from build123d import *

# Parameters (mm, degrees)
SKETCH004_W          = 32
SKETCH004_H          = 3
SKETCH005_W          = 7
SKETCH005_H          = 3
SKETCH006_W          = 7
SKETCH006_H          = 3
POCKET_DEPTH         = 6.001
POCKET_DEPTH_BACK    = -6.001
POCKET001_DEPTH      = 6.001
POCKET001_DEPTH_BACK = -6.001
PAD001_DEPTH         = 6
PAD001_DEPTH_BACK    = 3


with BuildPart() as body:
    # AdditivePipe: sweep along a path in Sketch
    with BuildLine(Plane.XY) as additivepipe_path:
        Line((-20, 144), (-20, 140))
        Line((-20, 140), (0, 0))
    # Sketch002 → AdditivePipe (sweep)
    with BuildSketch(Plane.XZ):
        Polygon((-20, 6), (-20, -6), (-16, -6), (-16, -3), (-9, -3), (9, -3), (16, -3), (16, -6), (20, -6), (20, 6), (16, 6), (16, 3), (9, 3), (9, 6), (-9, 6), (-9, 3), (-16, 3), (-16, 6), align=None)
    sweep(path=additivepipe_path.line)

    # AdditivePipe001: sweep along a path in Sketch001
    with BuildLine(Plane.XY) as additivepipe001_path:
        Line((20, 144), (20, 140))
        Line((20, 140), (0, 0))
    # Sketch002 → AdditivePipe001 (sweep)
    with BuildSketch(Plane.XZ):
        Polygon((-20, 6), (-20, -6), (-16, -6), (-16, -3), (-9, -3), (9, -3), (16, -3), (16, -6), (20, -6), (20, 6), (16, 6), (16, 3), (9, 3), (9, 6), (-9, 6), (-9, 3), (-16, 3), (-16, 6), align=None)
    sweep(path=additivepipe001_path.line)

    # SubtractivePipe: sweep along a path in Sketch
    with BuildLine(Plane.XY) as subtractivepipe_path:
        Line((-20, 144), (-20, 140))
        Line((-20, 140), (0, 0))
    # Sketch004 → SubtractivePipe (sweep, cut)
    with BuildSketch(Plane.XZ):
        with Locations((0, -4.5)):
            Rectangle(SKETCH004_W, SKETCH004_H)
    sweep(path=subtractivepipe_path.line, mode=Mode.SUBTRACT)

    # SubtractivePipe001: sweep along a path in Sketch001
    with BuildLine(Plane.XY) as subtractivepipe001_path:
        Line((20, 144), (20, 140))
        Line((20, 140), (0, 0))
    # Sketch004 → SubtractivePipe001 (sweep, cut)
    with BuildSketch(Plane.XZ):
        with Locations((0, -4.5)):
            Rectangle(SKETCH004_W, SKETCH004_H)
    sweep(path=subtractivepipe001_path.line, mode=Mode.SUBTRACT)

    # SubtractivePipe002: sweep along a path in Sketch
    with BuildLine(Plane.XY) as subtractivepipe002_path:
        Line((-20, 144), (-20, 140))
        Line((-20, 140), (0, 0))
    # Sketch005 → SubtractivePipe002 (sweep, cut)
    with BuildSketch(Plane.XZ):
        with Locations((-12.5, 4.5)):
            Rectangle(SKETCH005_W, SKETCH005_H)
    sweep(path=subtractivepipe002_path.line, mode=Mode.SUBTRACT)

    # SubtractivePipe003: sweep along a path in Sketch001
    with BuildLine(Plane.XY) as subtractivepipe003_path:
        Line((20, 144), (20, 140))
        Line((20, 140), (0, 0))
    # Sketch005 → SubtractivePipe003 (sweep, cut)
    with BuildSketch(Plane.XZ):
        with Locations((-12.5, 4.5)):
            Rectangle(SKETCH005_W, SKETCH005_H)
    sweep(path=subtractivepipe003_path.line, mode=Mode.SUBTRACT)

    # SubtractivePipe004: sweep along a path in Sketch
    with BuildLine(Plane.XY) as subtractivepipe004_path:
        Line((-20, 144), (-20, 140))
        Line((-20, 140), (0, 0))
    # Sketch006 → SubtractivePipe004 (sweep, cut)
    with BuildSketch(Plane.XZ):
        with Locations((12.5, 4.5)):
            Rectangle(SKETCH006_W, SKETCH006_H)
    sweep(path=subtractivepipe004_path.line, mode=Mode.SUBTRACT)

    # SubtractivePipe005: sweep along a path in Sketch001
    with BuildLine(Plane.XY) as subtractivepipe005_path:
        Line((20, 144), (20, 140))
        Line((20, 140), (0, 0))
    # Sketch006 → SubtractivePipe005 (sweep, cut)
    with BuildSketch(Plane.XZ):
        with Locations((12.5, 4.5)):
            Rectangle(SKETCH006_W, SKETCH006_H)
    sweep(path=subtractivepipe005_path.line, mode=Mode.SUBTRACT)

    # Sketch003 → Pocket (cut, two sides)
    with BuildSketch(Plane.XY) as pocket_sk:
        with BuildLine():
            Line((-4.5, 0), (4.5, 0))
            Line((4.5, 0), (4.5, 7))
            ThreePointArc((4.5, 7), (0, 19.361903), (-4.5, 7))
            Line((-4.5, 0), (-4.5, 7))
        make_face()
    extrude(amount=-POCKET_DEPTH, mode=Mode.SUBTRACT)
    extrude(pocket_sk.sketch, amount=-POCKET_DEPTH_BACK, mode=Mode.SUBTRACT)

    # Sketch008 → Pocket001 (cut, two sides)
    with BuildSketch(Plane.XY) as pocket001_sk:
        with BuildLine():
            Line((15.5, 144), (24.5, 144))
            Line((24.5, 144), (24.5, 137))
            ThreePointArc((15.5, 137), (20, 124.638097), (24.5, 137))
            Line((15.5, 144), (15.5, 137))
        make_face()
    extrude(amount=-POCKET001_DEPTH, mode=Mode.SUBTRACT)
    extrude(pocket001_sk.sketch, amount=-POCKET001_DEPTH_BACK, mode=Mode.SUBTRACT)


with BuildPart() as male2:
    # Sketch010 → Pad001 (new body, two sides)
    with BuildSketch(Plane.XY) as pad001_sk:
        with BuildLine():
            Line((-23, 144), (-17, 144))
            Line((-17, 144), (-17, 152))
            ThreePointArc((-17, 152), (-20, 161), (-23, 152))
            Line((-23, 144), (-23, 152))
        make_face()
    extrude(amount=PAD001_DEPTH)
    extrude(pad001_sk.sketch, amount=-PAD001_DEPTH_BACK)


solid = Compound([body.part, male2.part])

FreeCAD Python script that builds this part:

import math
import FreeCAD as App
import Part
import Sketcher


def add_polygon(sketch, points):
    """Adds a closed chain of lines whose ends are joined by coincident constraints."""
    first, n = sketch.GeometryCount, len(points)
    for a, b in zip(points, points[1:] + points[:1]):
        sketch.addGeometry(Part.LineSegment(App.Vector(*a, 0), App.Vector(*b, 0)), False)
    for i in range(n):
        sketch.addConstraint(Sketcher.Constraint("Coincident", first + i, 2, first + (i + 1) % n, 1))

doc = App.newDocument("Part")
params = doc.addObject("Spreadsheet::Sheet", "Params")
for row, (alias, value) in enumerate([
    ("sketch1_width", "4 mm"),
    ("sketch1_width2", "32 mm"),
    ("sketch1_width3", "7 mm"),
    ("sketch1_height", "12 mm"),
    ("sketch1_height2", "3 mm"),
    ("sketch2_height", "4 mm"),
    ("sketch3_width", "4 mm"),
    ("sketch3_width2", "32 mm"),
    ("sketch3_width3", "7 mm"),
    ("sketch3_height", "12 mm"),
    ("sketch3_height2", "3 mm"),
    ("sketch4_height", "4 mm"),
    ("sketch5_width", "32 mm"),
    ("sketch5_height", "3 mm"),
    ("sketch6_height", "4 mm"),
    ("sketch7_width", "32 mm"),
    ("sketch7_height", "3 mm"),
    ("sketch8_height", "4 mm"),
    ("sketch9_width", "7 mm"),
    ("sketch9_height", "3 mm"),
    ("sketch10_height", "4 mm"),
    ("sketch11_width", "7 mm"),
    ("sketch11_height", "3 mm"),
    ("sketch12_height", "4 mm"),
    ("sketch13_width", "7 mm"),
    ("sketch13_height", "3 mm"),
    ("sketch14_height", "4 mm"),
    ("sketch15_width", "7 mm"),
    ("sketch15_height", "3 mm"),
    ("sketch16_height", "4 mm"),
    ("sketch17_radius", "7 mm"),
    ("sketch17_width", "9 mm"),
    ("sketch17_height", "7 mm"),
    ("sketch18_radius", "7 mm"),
    ("sketch18_width", "9 mm"),
    ("sketch18_height", "7 mm"),
    ("sketch19_radius", "5 mm"),
    ("sketch19_width", "6 mm"),
    ("sketch19_height", "8 mm"),
    ("pad1_length", "6 mm"),
    ("pad1_length2", "3 mm"),
], start=1):
    params.set(f"A{row}", alias)
    params.set(f"B{row}", "=" + value)
    params.setAlias(f"B{row}", alias)

body = doc.addObject("PartDesign::Body", "Body")

sketch1 = body.newObject("Sketcher::SketchObject", "Sketch")
sketch1.AttachmentSupport = (doc.getObject("XZ_Plane"), [""])
sketch1.MapMode = "FlatFace"
add_polygon(sketch1, [(-20, 6), (-20, -6), (-16, -6), (-16, -3), (16, -3), (16, -6), (20, -6), (20, 6), (16, 6), (16, 3), (9, 3), (9, 6), (-9, 6), (-9, 3), (-16, 3), (-16, 6)])
sketch1.addConstraint(Sketcher.Constraint("Vertical", 0))
sketch1.addConstraint(Sketcher.Constraint("Horizontal", 1))
sketch1.addConstraint(Sketcher.Constraint("Vertical", 2))
sketch1.addConstraint(Sketcher.Constraint("Horizontal", 3))
sketch1.addConstraint(Sketcher.Constraint("Vertical", 4))
sketch1.addConstraint(Sketcher.Constraint("Horizontal", 5))
sketch1.addConstraint(Sketcher.Constraint("Vertical", 6))
sketch1.addConstraint(Sketcher.Constraint("Horizontal", 7))
sketch1.addConstraint(Sketcher.Constraint("Vertical", 8))
sketch1.addConstraint(Sketcher.Constraint("Horizontal", 9))
sketch1.addConstraint(Sketcher.Constraint("Vertical", 10))
sketch1.addConstraint(Sketcher.Constraint("Horizontal", 11))
sketch1.addConstraint(Sketcher.Constraint("Vertical", 12))
sketch1.addConstraint(Sketcher.Constraint("Horizontal", 13))
sketch1.addConstraint(Sketcher.Constraint("Vertical", 14))
sketch1.addConstraint(Sketcher.Constraint("Horizontal", 15))
sketch1.addConstraint(Sketcher.Constraint("Symmetric", 0, 2, 6, 2, -1, 1))
sketch1.addConstraint(Sketcher.Constraint("Symmetric", 2, 2, 8, 2, -1, 1))
sketch1.addConstraint(Sketcher.Constraint("Symmetric", 3, 2, 13, 2, -1, 1))
sketch1.addConstraint(Sketcher.Constraint("Symmetric", 1, 2, 4, 2, -2))
sketch1.addConstraint(Sketcher.Constraint("Horizontal", 7, 2, 10, 2))
sketch1.addConstraint(Sketcher.Constraint("Horizontal", 11, 2, 14, 2))
sketch1.addConstraint(Sketcher.Constraint("Equal", 9, 13))
sketch1.addConstraint(Sketcher.Constraint("DistanceX", 1, 1, 1, 2, 4.0))
sketch1.addConstraint(Sketcher.Constraint("DistanceX", 3, 1, 3, 2, 32.0))
sketch1.addConstraint(Sketcher.Constraint("DistanceX", 9, 2, 9, 1, 7.0))
sketch1.addConstraint(Sketcher.Constraint("DistanceY", 0, 2, 0, 1, 12.0))
sketch1.addConstraint(Sketcher.Constraint("DistanceY", 2, 1, 2, 2, 3.0))
sketch1.setExpression("Constraints[39]", "Params.sketch1_width")
sketch1.setExpression("Constraints[40]", "Params.sketch1_width2")
sketch1.setExpression("Constraints[41]", "Params.sketch1_width3")
sketch1.setExpression("Constraints[42]", "Params.sketch1_height")
sketch1.setExpression("Constraints[43]", "Params.sketch1_height2")

sketch2 = body.newObject("Sketcher::SketchObject", "Sketch001")
sketch2.AttachmentSupport = (doc.getObject("XY_Plane"), [""])
sketch2.MapMode = "FlatFace"
sketch2.addGeometry(Part.LineSegment(App.Vector(-20, 144, 0), App.Vector(-20, 140, 0)), False)
sketch2.addGeometry(Part.LineSegment(App.Vector(-20, 140, 0), App.Vector(0, 0, 0)), False)
sketch2.addConstraint(Sketcher.Constraint("Coincident", 0, 2, 1, 1))
sketch2.addConstraint(Sketcher.Constraint("Vertical", 0))
sketch2.addConstraint(Sketcher.Constraint("Coincident", 1, 2, -1, 1))
sketch2.addConstraint(Sketcher.Constraint("DistanceY", 0, 2, 0, 1, 4.0))
sketch2.addConstraint(Sketcher.Constraint("DistanceX", 0, 1, -1, 1, 20.0))
sketch2.addConstraint(Sketcher.Constraint("DistanceY", -1, 1, 0, 1, 144.0))
sketch2.setExpression("Constraints[3]", "Params.sketch2_height")
doc.recompute()

additivepipe = body.newObject("PartDesign::AdditivePipe", "AdditivePipe")
additivepipe.Profile = sketch1
additivepipe.Spine = (sketch2, ["Edge1", "Edge2"])

sketch3 = body.newObject("Sketcher::SketchObject", "Sketch002")
sketch3.AttachmentSupport = (doc.getObject("XZ_Plane"), [""])
sketch3.MapMode = "FlatFace"
add_polygon(sketch3, [(-20, 6), (-20, -6), (-16, -6), (-16, -3), (16, -3), (16, -6), (20, -6), (20, 6), (16, 6), (16, 3), (9, 3), (9, 6), (-9, 6), (-9, 3), (-16, 3), (-16, 6)])
sketch3.addConstraint(Sketcher.Constraint("Vertical", 0))
sketch3.addConstraint(Sketcher.Constraint("Horizontal", 1))
sketch3.addConstraint(Sketcher.Constraint("Vertical", 2))
sketch3.addConstraint(Sketcher.Constraint("Horizontal", 3))
sketch3.addConstraint(Sketcher.Constraint("Vertical", 4))
sketch3.addConstraint(Sketcher.Constraint("Horizontal", 5))
sketch3.addConstraint(Sketcher.Constraint("Vertical", 6))
sketch3.addConstraint(Sketcher.Constraint("Horizontal", 7))
sketch3.addConstraint(Sketcher.Constraint("Vertical", 8))
sketch3.addConstraint(Sketcher.Constraint("Horizontal", 9))
sketch3.addConstraint(Sketcher.Constraint("Vertical", 10))
sketch3.addConstraint(Sketcher.Constraint("Horizontal", 11))
sketch3.addConstraint(Sketcher.Constraint("Vertical", 12))
sketch3.addConstraint(Sketcher.Constraint("Horizontal", 13))
sketch3.addConstraint(Sketcher.Constraint("Vertical", 14))
sketch3.addConstraint(Sketcher.Constraint("Horizontal", 15))
sketch3.addConstraint(Sketcher.Constraint("Symmetric", 0, 2, 6, 2, -1, 1))
sketch3.addConstraint(Sketcher.Constraint("Symmetric", 2, 2, 8, 2, -1, 1))
sketch3.addConstraint(Sketcher.Constraint("Symmetric", 3, 2, 13, 2, -1, 1))
sketch3.addConstraint(Sketcher.Constraint("Symmetric", 1, 2, 4, 2, -2))
sketch3.addConstraint(Sketcher.Constraint("Horizontal", 7, 2, 10, 2))
sketch3.addConstraint(Sketcher.Constraint("Horizontal", 11, 2, 14, 2))
sketch3.addConstraint(Sketcher.Constraint("Equal", 9, 13))
sketch3.addConstraint(Sketcher.Constraint("DistanceX", 1, 1, 1, 2, 4.0))
sketch3.addConstraint(Sketcher.Constraint("DistanceX", 3, 1, 3, 2, 32.0))
sketch3.addConstraint(Sketcher.Constraint("DistanceX", 9, 2, 9, 1, 7.0))
sketch3.addConstraint(Sketcher.Constraint("DistanceY", 0, 2, 0, 1, 12.0))
sketch3.addConstraint(Sketcher.Constraint("DistanceY", 2, 1, 2, 2, 3.0))
sketch3.setExpression("Constraints[39]", "Params.sketch3_width")
sketch3.setExpression("Constraints[40]", "Params.sketch3_width2")
sketch3.setExpression("Constraints[41]", "Params.sketch3_width3")
sketch3.setExpression("Constraints[42]", "Params.sketch3_height")
sketch3.setExpression("Constraints[43]", "Params.sketch3_height2")

sketch4 = body.newObject("Sketcher::SketchObject", "Sketch003")
sketch4.AttachmentSupport = (doc.getObject("XY_Plane"), [""])
sketch4.MapMode = "FlatFace"
sketch4.addGeometry(Part.LineSegment(App.Vector(20, 144, 0), App.Vector(20, 140, 0)), False)
sketch4.addGeometry(Part.LineSegment(App.Vector(20, 140, 0), App.Vector(0, 0, 0)), False)
sketch4.addConstraint(Sketcher.Constraint("Coincident", 0, 2, 1, 1))
sketch4.addConstraint(Sketcher.Constraint("Vertical", 0))
sketch4.addConstraint(Sketcher.Constraint("Coincident", 1, 2, -1, 1))
sketch4.addConstraint(Sketcher.Constraint("DistanceY", 0, 2, 0, 1, 4.0))
sketch4.addConstraint(Sketcher.Constraint("DistanceX", -1, 1, 0, 1, 20.0))
sketch4.addConstraint(Sketcher.Constraint("DistanceY", -1, 1, 0, 1, 144.0))
sketch4.setExpression("Constraints[3]", "Params.sketch4_height")
doc.recompute()

additivepipe2 = body.newObject("PartDesign::AdditivePipe", "AdditivePipe001")
additivepipe2.Profile = sketch3
additivepipe2.Spine = (sketch4, ["Edge1", "Edge2"])

sketch5 = body.newObject("Sketcher::SketchObject", "Sketch004")
sketch5.AttachmentSupport = (doc.getObject("XZ_Plane"), [""])
sketch5.MapMode = "FlatFace"
add_polygon(sketch5, [(-16, -3), (-16, -6), (16, -6), (16, -3)])
sketch5.addConstraint(Sketcher.Constraint("Vertical", 0))
sketch5.addConstraint(Sketcher.Constraint("Horizontal", 1))
sketch5.addConstraint(Sketcher.Constraint("Vertical", 2))
sketch5.addConstraint(Sketcher.Constraint("Horizontal", 3))
sketch5.addConstraint(Sketcher.Constraint("DistanceX", 1, 1, 1, 2, 32.0))
sketch5.addConstraint(Sketcher.Constraint("DistanceY", 0, 2, 0, 1, 3.0))
sketch5.addConstraint(Sketcher.Constraint("DistanceX", 0, 2, -1, 1, 16.0))
sketch5.addConstraint(Sketcher.Constraint("DistanceY", 0, 2, -1, 1, 6.0))
sketch5.setExpression("Constraints[8]", "Params.sketch5_width")
sketch5.setExpression("Constraints[9]", "Params.sketch5_height")

sketch6 = body.newObject("Sketcher::SketchObject", "Sketch005")
sketch6.AttachmentSupport = (doc.getObject("XY_Plane"), [""])
sketch6.MapMode = "FlatFace"
sketch6.addGeometry(Part.LineSegment(App.Vector(-20, 144, 0), App.Vector(-20, 140, 0)), False)
sketch6.addGeometry(Part.LineSegment(App.Vector(-20, 140, 0), App.Vector(0, 0, 0)), False)
sketch6.addConstraint(Sketcher.Constraint("Coincident", 0, 2, 1, 1))
sketch6.addConstraint(Sketcher.Constraint("Vertical", 0))
sketch6.addConstraint(Sketcher.Constraint("Coincident", 1, 2, -1, 1))
sketch6.addConstraint(Sketcher.Constraint("DistanceY", 0, 2, 0, 1, 4.0))
sketch6.addConstraint(Sketcher.Constraint("DistanceX", 0, 1, -1, 1, 20.0))
sketch6.addConstraint(Sketcher.Constraint("DistanceY", -1, 1, 0, 1, 144.0))
sketch6.setExpression("Constraints[3]", "Params.sketch6_height")
doc.recompute()

subtractivepipe = body.newObject("PartDesign::SubtractivePipe", "SubtractivePipe")
subtractivepipe.Profile = sketch5
subtractivepipe.Spine = (sketch6, ["Edge1", "Edge2"])

sketch7 = body.newObject("Sketcher::SketchObject", "Sketch006")
sketch7.AttachmentSupport = (doc.getObject("XZ_Plane"), [""])
sketch7.MapMode = "FlatFace"
add_polygon(sketch7, [(-16, -3), (-16, -6), (16, -6), (16, -3)])
sketch7.addConstraint(Sketcher.Constraint("Vertical", 0))
sketch7.addConstraint(Sketcher.Constraint("Horizontal", 1))
sketch7.addConstraint(Sketcher.Constraint("Vertical", 2))
sketch7.addConstraint(Sketcher.Constraint("Horizontal", 3))
sketch7.addConstraint(Sketcher.Constraint("DistanceX", 1, 1, 1, 2, 32.0))
sketch7.addConstraint(Sketcher.Constraint("DistanceY", 0, 2, 0, 1, 3.0))
sketch7.addConstraint(Sketcher.Constraint("DistanceX", 0, 2, -1, 1, 16.0))
sketch7.addConstraint(Sketcher.Constraint("DistanceY", 0, 2, -1, 1, 6.0))
sketch7.setExpression("Constraints[8]", "Params.sketch7_width")
sketch7.setExpression("Constraints[9]", "Params.sketch7_height")

sketch8 = body.newObject("Sketcher::SketchObject", "Sketch007")
sketch8.AttachmentSupport = (doc.getObject("XY_Plane"), [""])
sketch8.MapMode = "FlatFace"
sketch8.addGeometry(Part.LineSegment(App.Vector(20, 144, 0), App.Vector(20, 140, 0)), False)
sketch8.addGeometry(Part.LineSegment(App.Vector(20, 140, 0), App.Vector(0, 0, 0)), False)
sketch8.addConstraint(Sketcher.Constraint("Coincident", 0, 2, 1, 1))
sketch8.addConstraint(Sketcher.Constraint("Vertical", 0))
sketch8.addConstraint(Sketcher.Constraint("Coincident", 1, 2, -1, 1))
sketch8.addConstraint(Sketcher.Constraint("DistanceY", 0, 2, 0, 1, 4.0))
sketch8.addConstraint(Sketcher.Constraint("DistanceX", -1, 1, 0, 1, 20.0))
sketch8.addConstraint(Sketcher.Constraint("DistanceY", -1, 1, 0, 1, 144.0))
sketch8.setExpression("Constraints[3]", "Params.sketch8_height")
doc.recompute()

subtractivepipe2 = body.newObject("PartDesign::SubtractivePipe", "SubtractivePipe001")
subtractivepipe2.Profile = sketch7
subtractivepipe2.Spine = (sketch8, ["Edge1", "Edge2"])

sketch9 = body.newObject("Sketcher::SketchObject", "Sketch008")
sketch9.AttachmentSupport = (doc.getObject("XZ_Plane"), [""])
sketch9.MapMode = "FlatFace"
add_polygon(sketch9, [(-16, 6), (-16, 3), (-9, 3), (-9, 6)])
sketch9.addConstraint(Sketcher.Constraint("Vertical", 0))
sketch9.addConstraint(Sketcher.Constraint("Horizontal", 1))
sketch9.addConstraint(Sketcher.Constraint("Vertical", 2))
sketch9.addConstraint(Sketcher.Constraint("Horizontal", 3))
sketch9.addConstraint(Sketcher.Constraint("DistanceX", 1, 1, 1, 2, 7.0))
sketch9.addConstraint(Sketcher.Constraint("DistanceY", 0, 2, 0, 1, 3.0))
sketch9.addConstraint(Sketcher.Constraint("DistanceX", 0, 2, -1, 1, 16.0))
sketch9.addConstraint(Sketcher.Constraint("DistanceY", -1, 1, 0, 2, 3.0))
sketch9.setExpression("Constraints[8]", "Params.sketch9_width")
sketch9.setExpression("Constraints[9]", "Params.sketch9_height")

sketch10 = body.newObject("Sketcher::SketchObject", "Sketch009")
sketch10.AttachmentSupport = (doc.getObject("XY_Plane"), [""])
sketch10.MapMode = "FlatFace"
sketch10.addGeometry(Part.LineSegment(App.Vector(-20, 144, 0), App.Vector(-20, 140, 0)), False)
sketch10.addGeometry(Part.LineSegment(App.Vector(-20, 140, 0), App.Vector(0, 0, 0)), False)
sketch10.addConstraint(Sketcher.Constraint("Coincident", 0, 2, 1, 1))
sketch10.addConstraint(Sketcher.Constraint("Vertical", 0))
sketch10.addConstraint(Sketcher.Constraint("Coincident", 1, 2, -1, 1))
sketch10.addConstraint(Sketcher.Constraint("DistanceY", 0, 2, 0, 1, 4.0))
sketch10.addConstraint(Sketcher.Constraint("DistanceX", 0, 1, -1, 1, 20.0))
sketch10.addConstraint(Sketcher.Constraint("DistanceY", -1, 1, 0, 1, 144.0))
sketch10.setExpression("Constraints[3]", "Params.sketch10_height")
doc.recompute()

subtractivepipe3 = body.newObject("PartDesign::SubtractivePipe", "SubtractivePipe002")
subtractivepipe3.Profile = sketch9
subtractivepipe3.Spine = (sketch10, ["Edge1", "Edge2"])

sketch11 = body.newObject("Sketcher::SketchObject", "Sketch010")
sketch11.AttachmentSupport = (doc.getObject("XZ_Plane"), [""])
sketch11.MapMode = "FlatFace"
add_polygon(sketch11, [(-16, 6), (-16, 3), (-9, 3), (-9, 6)])
sketch11.addConstraint(Sketcher.Constraint("Vertical", 0))
sketch11.addConstraint(Sketcher.Constraint("Horizontal", 1))
sketch11.addConstraint(Sketcher.Constraint("Vertical", 2))
sketch11.addConstraint(Sketcher.Constraint("Horizontal", 3))
sketch11.addConstraint(Sketcher.Constraint("DistanceX", 1, 1, 1, 2, 7.0))
sketch11.addConstraint(Sketcher.Constraint("DistanceY", 0, 2, 0, 1, 3.0))
sketch11.addConstraint(Sketcher.Constraint("DistanceX", 0, 2, -1, 1, 16.0))
sketch11.addConstraint(Sketcher.Constraint("DistanceY", -1, 1, 0, 2, 3.0))
sketch11.setExpression("Constraints[8]", "Params.sketch11_width")
sketch11.setExpression("Constraints[9]", "Params.sketch11_height")

sketch12 = body.newObject("Sketcher::SketchObject", "Sketch011")
sketch12.AttachmentSupport = (doc.getObject("XY_Plane"), [""])
sketch12.MapMode = "FlatFace"
sketch12.addGeometry(Part.LineSegment(App.Vector(20, 144, 0), App.Vector(20, 140, 0)), False)
sketch12.addGeometry(Part.LineSegment(App.Vector(20, 140, 0), App.Vector(0, 0, 0)), False)
sketch12.addConstraint(Sketcher.Constraint("Coincident", 0, 2, 1, 1))
sketch12.addConstraint(Sketcher.Constraint("Vertical", 0))
sketch12.addConstraint(Sketcher.Constraint("Coincident", 1, 2, -1, 1))
sketch12.addConstraint(Sketcher.Constraint("DistanceY", 0, 2, 0, 1, 4.0))
sketch12.addConstraint(Sketcher.Constraint("DistanceX", -1, 1, 0, 1, 20.0))
sketch12.addConstraint(Sketcher.Constraint("DistanceY", -1, 1, 0, 1, 144.0))
sketch12.setExpression("Constraints[3]", "Params.sketch12_height")
doc.recompute()

subtractivepipe4 = body.newObject("PartDesign::SubtractivePipe", "SubtractivePipe003")
subtractivepipe4.Profile = sketch11
subtractivepipe4.Spine = (sketch12, ["Edge1", "Edge2"])

sketch13 = body.newObject("Sketcher::SketchObject", "Sketch012")
sketch13.AttachmentSupport = (doc.getObject("XZ_Plane"), [""])
sketch13.MapMode = "FlatFace"
add_polygon(sketch13, [(9, 6), (9, 3), (16, 3), (16, 6)])
sketch13.addConstraint(Sketcher.Constraint("Vertical", 0))
sketch13.addConstraint(Sketcher.Constraint("Horizontal", 1))
sketch13.addConstraint(Sketcher.Constraint("Vertical", 2))
sketch13.addConstraint(Sketcher.Constraint("Horizontal", 3))
sketch13.addConstraint(Sketcher.Constraint("DistanceX", 1, 1, 1, 2, 7.0))
sketch13.addConstraint(Sketcher.Constraint("DistanceY", 0, 2, 0, 1, 3.0))
sketch13.addConstraint(Sketcher.Constraint("DistanceX", -1, 1, 0, 2, 9.0))
sketch13.addConstraint(Sketcher.Constraint("DistanceY", -1, 1, 0, 2, 3.0))
sketch13.setExpression("Constraints[8]", "Params.sketch13_width")
sketch13.setExpression("Constraints[9]", "Params.sketch13_height")

sketch14 = body.newObject("Sketcher::SketchObject", "Sketch013")
sketch14.AttachmentSupport = (doc.getObject("XY_Plane"), [""])
sketch14.MapMode = "FlatFace"
sketch14.addGeometry(Part.LineSegment(App.Vector(-20, 144, 0), App.Vector(-20, 140, 0)), False)
sketch14.addGeometry(Part.LineSegment(App.Vector(-20, 140, 0), App.Vector(0, 0, 0)), False)
sketch14.addConstraint(Sketcher.Constraint("Coincident", 0, 2, 1, 1))
sketch14.addConstraint(Sketcher.Constraint("Vertical", 0))
sketch14.addConstraint(Sketcher.Constraint("Coincident", 1, 2, -1, 1))
sketch14.addConstraint(Sketcher.Constraint("DistanceY", 0, 2, 0, 1, 4.0))
sketch14.addConstraint(Sketcher.Constraint("DistanceX", 0, 1, -1, 1, 20.0))
sketch14.addConstraint(Sketcher.Constraint("DistanceY", -1, 1, 0, 1, 144.0))
sketch14.setExpression("Constraints[3]", "Params.sketch14_height")
doc.recompute()

subtractivepipe5 = body.newObject("PartDesign::SubtractivePipe", "SubtractivePipe004")
subtractivepipe5.Profile = sketch13
subtractivepipe5.Spine = (sketch14, ["Edge1", "Edge2"])

sketch15 = body.newObject("Sketcher::SketchObject", "Sketch014")
sketch15.AttachmentSupport = (doc.getObject("XZ_Plane"), [""])
sketch15.MapMode = "FlatFace"
add_polygon(sketch15, [(9, 6), (9, 3), (16, 3), (16, 6)])
sketch15.addConstraint(Sketcher.Constraint("Vertical", 0))
sketch15.addConstraint(Sketcher.Constraint("Horizontal", 1))
sketch15.addConstraint(Sketcher.Constraint("Vertical", 2))
sketch15.addConstraint(Sketcher.Constraint("Horizontal", 3))
sketch15.addConstraint(Sketcher.Constraint("DistanceX", 1, 1, 1, 2, 7.0))
sketch15.addConstraint(Sketcher.Constraint("DistanceY", 0, 2, 0, 1, 3.0))
sketch15.addConstraint(Sketcher.Constraint("DistanceX", -1, 1, 0, 2, 9.0))
sketch15.addConstraint(Sketcher.Constraint("DistanceY", -1, 1, 0, 2, 3.0))
sketch15.setExpression("Constraints[8]", "Params.sketch15_width")
sketch15.setExpression("Constraints[9]", "Params.sketch15_height")

sketch16 = body.newObject("Sketcher::SketchObject", "Sketch015")
sketch16.AttachmentSupport = (doc.getObject("XY_Plane"), [""])
sketch16.MapMode = "FlatFace"
sketch16.addGeometry(Part.LineSegment(App.Vector(20, 144, 0), App.Vector(20, 140, 0)), False)
sketch16.addGeometry(Part.LineSegment(App.Vector(20, 140, 0), App.Vector(0, 0, 0)), False)
sketch16.addConstraint(Sketcher.Constraint("Coincident", 0, 2, 1, 1))
sketch16.addConstraint(Sketcher.Constraint("Vertical", 0))
sketch16.addConstraint(Sketcher.Constraint("Coincident", 1, 2, -1, 1))
sketch16.addConstraint(Sketcher.Constraint("DistanceY", 0, 2, 0, 1, 4.0))
sketch16.addConstraint(Sketcher.Constraint("DistanceX", -1, 1, 0, 1, 20.0))
sketch16.addConstraint(Sketcher.Constraint("DistanceY", -1, 1, 0, 1, 144.0))
sketch16.setExpression("Constraints[3]", "Params.sketch16_height")
doc.recompute()

subtractivepipe6 = body.newObject("PartDesign::SubtractivePipe", "SubtractivePipe005")
subtractivepipe6.Profile = sketch15
subtractivepipe6.Spine = (sketch16, ["Edge1", "Edge2"])

sketch17 = body.newObject("Sketcher::SketchObject", "Sketch016")
sketch17.AttachmentSupport = (doc.getObject("XY_Plane"), [""])
sketch17.MapMode = "FlatFace"
sketch17.addGeometry(Part.LineSegment(App.Vector(-4.5, 0, 0), App.Vector(4.5, 0, 0)), False)
sketch17.addGeometry(Part.LineSegment(App.Vector(4.5, 0, 0), App.Vector(4.5, 7, 0)), False)
sketch17.addGeometry(Part.ArcOfCircle(Part.Circle(App.Vector(0, 12.361903, 0), App.Vector(0, 0, 1), 7), math.radians(-49.9948), math.radians(229.9948)), False)
sketch17.addGeometry(Part.LineSegment(App.Vector(-4.5, 7, 0), App.Vector(-4.5, 0, 0)), False)
sketch17.addConstraint(Sketcher.Constraint("Coincident", 0, 2, 1, 1))
sketch17.addConstraint(Sketcher.Constraint("Coincident", 1, 2, 2, 1))
sketch17.addConstraint(Sketcher.Constraint("Coincident", 2, 2, 3, 1))
sketch17.addConstraint(Sketcher.Constraint("Coincident", 3, 2, 0, 1))
sketch17.addConstraint(Sketcher.Constraint("Horizontal", 0))
sketch17.addConstraint(Sketcher.Constraint("Vertical", 1))
sketch17.addConstraint(Sketcher.Constraint("Vertical", 3))
sketch17.addConstraint(Sketcher.Constraint("Symmetric", 0, 2, 3, 2, -1, 1))
sketch17.addConstraint(Sketcher.Constraint("PointOnObject", 2, 3, -2))
sketch17.addConstraint(Sketcher.Constraint("Radius", 2, 7.0))
sketch17.addConstraint(Sketcher.Constraint("DistanceX", 0, 1, 0, 2, 9.0))
sketch17.addConstraint(Sketcher.Constraint("DistanceY", 1, 1, 1, 2, 7.0))
sketch17.setExpression("Constraints[9]", "Params.sketch17_radius")
sketch17.setExpression("Constraints[10]", "Params.sketch17_width")
sketch17.setExpression("Constraints[11]", "Params.sketch17_height")
pocket1 = body.newObject("PartDesign::Pocket", "Pocket")
pocket1.Profile = sketch17
pocket1.Type = "ThroughAll"
pocket1.Midplane = True

sketch18 = body.newObject("Sketcher::SketchObject", "Sketch017")
sketch18.AttachmentSupport = (doc.getObject("XY_Plane"), [""])
sketch18.MapMode = "FlatFace"
sketch18.addGeometry(Part.LineSegment(App.Vector(24.5, 144, 0), App.Vector(15.5, 144, 0)), False)
sketch18.addGeometry(Part.LineSegment(App.Vector(15.5, 144, 0), App.Vector(15.5, 137, 0)), False)
sketch18.addGeometry(Part.ArcOfCircle(Part.Circle(App.Vector(20, 131.638097, 0), App.Vector(0, 0, 1), 7), math.radians(130.0052), math.radians(409.9948)), False)
sketch18.addGeometry(Part.LineSegment(App.Vector(24.5, 137, 0), App.Vector(24.5, 144, 0)), False)
sketch18.addConstraint(Sketcher.Constraint("Coincident", 0, 2, 1, 1))
sketch18.addConstraint(Sketcher.Constraint("Coincident", 1, 2, 2, 1))
sketch18.addConstraint(Sketcher.Constraint("Coincident", 2, 2, 3, 1))
sketch18.addConstraint(Sketcher.Constraint("Coincident", 3, 2, 0, 1))
sketch18.addConstraint(Sketcher.Constraint("Horizontal", 0))
sketch18.addConstraint(Sketcher.Constraint("Vertical", 1))
sketch18.addConstraint(Sketcher.Constraint("Vertical", 3))
sketch18.addConstraint(Sketcher.Constraint("Horizontal", 1, 2, 2, 2))
sketch18.addConstraint(Sketcher.Constraint("Radius", 2, 7.0))
sketch18.addConstraint(Sketcher.Constraint("DistanceX", 0, 2, 0, 1, 9.0))
sketch18.addConstraint(Sketcher.Constraint("DistanceY", 1, 2, 1, 1, 7.0))
sketch18.addConstraint(Sketcher.Constraint("DistanceX", -1, 1, 2, 3, 20.0))
sketch18.addConstraint(Sketcher.Constraint("DistanceY", -1, 1, 0, 2, 144.0))
sketch18.setExpression("Constraints[8]", "Params.sketch18_radius")
sketch18.setExpression("Constraints[9]", "Params.sketch18_width")
sketch18.setExpression("Constraints[10]", "Params.sketch18_height")
pocket2 = body.newObject("PartDesign::Pocket", "Pocket001")
pocket2.Profile = sketch18
pocket2.Type = "ThroughAll"
pocket2.Midplane = True
body2 = doc.addObject("PartDesign::Body", "Body001")

sketch19 = body2.newObject("Sketcher::SketchObject", "Sketch018")
sketch19.AttachmentSupport = (doc.getObject("XY_Plane001"), [""])
sketch19.MapMode = "FlatFace"
sketch19.addGeometry(Part.LineSegment(App.Vector(-23, 144, 0), App.Vector(-17, 144, 0)), False)
sketch19.addGeometry(Part.LineSegment(App.Vector(-17, 144, 0), App.Vector(-17, 152, 0)), False)
sketch19.addGeometry(Part.ArcOfCircle(Part.Circle(App.Vector(-20, 156, 0), App.Vector(0, 0, 1), 5), math.radians(-53.130102), math.radians(233.130102)), False)
sketch19.addGeometry(Part.LineSegment(App.Vector(-23, 152, 0), App.Vector(-23, 144, 0)), False)
sketch19.addConstraint(Sketcher.Constraint("Coincident", 0, 2, 1, 1))
sketch19.addConstraint(Sketcher.Constraint("Coincident", 1, 2, 2, 1))
sketch19.addConstraint(Sketcher.Constraint("Coincident", 2, 2, 3, 1))
sketch19.addConstraint(Sketcher.Constraint("Coincident", 3, 2, 0, 1))
sketch19.addConstraint(Sketcher.Constraint("Horizontal", 0))
sketch19.addConstraint(Sketcher.Constraint("Vertical", 1))
sketch19.addConstraint(Sketcher.Constraint("Vertical", 3))
sketch19.addConstraint(Sketcher.Constraint("Horizontal", 1, 2, 2, 2))
sketch19.addConstraint(Sketcher.Constraint("Radius", 2, 5.0))
sketch19.addConstraint(Sketcher.Constraint("DistanceX", 0, 1, 0, 2, 6.0))
sketch19.addConstraint(Sketcher.Constraint("DistanceY", 1, 1, 1, 2, 8.0))
sketch19.addConstraint(Sketcher.Constraint("DistanceX", 2, 3, -1, 1, 20.0))
sketch19.addConstraint(Sketcher.Constraint("DistanceY", -1, 1, 2, 3, 156.0))
sketch19.setExpression("Constraints[8]", "Params.sketch19_radius")
sketch19.setExpression("Constraints[9]", "Params.sketch19_width")
sketch19.setExpression("Constraints[10]", "Params.sketch19_height")
pad1 = body2.newObject("PartDesign::Pad", "Pad")
pad1.Profile = sketch19
pad1.Type = "TwoLengths"
pad1.setExpression("Length", "Params.pad1_length")
pad1.setExpression("Length2", "Params.pad1_length2")

doc.recompute()
